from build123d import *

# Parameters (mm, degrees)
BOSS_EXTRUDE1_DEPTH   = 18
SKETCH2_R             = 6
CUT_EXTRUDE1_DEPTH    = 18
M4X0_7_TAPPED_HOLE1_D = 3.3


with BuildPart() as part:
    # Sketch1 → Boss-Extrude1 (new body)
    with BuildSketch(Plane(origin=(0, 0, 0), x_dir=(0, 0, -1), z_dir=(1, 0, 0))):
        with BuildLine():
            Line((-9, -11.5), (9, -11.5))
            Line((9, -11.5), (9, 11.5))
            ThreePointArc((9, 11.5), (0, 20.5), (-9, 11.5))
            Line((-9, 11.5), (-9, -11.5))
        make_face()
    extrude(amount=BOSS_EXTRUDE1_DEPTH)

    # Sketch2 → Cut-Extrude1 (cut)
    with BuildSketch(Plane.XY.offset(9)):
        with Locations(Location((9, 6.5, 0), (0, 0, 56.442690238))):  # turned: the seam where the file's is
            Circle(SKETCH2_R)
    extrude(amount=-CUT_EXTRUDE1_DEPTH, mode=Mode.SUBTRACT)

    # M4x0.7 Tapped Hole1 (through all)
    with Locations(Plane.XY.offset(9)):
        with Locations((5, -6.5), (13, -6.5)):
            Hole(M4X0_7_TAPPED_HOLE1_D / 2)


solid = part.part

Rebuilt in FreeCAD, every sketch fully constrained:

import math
import FreeCAD as App
import Part
import Sketcher
Q = App.Units.Quantity

doc = App.newDocument("Part")
params = doc.addObject("Spreadsheet::Sheet", "Params")
for row, (alias, value) in enumerate([
    ("sketch1_radius", "9 mm"),
    ("sketch1_width", "23 mm"),
    ("pad1_length", "18 mm"),
    ("sketch2_diameter", "12 mm"),
    ("pocket1_length", "18 mm"),
    ("sketch3_diameter", "3.3 mm"),
    ("hole_diameter", "3.3 mm"),
], start=1):
    params.set(f"A{row}", alias)
    params.set(f"B{row}", "=" + value)
    params.setAlias(f"B{row}", alias)

body = doc.addObject("PartDesign::Body", "Body")

# Sketch on YZ plane
sketch1 = body.newObject("Sketcher::SketchObject", "Sketch")
sketch1.AttachmentSupport = (doc.getObject("YZ_Plane"), [""])
sketch1.MapMode = "FlatFace"
sketch1.addGeometry(Part.LineSegment(App.Vector(-12, 9, 0), App.Vector(-12, -9, 0)), False)
sketch1.addGeometry(Part.LineSegment(App.Vector(-12, -9, 0), App.Vector(12, -9, 0)), False)
sketch1.addGeometry(Part.ArcOfCircle(Part.Circle(App.Vector(12, 0, 0), App.Vector(0, 0, 1), 9), math.radians(-90), math.radians(90)), False)
sketch1.addGeometry(Part.LineSegment(App.Vector(12, 9, 0), App.Vector(-12, 9, 0)), False)
sketch1.addConstraint(Sketcher.Constraint("Coincident", 0, 2, 1, 1))
sketch1.addConstraint(Sketcher.Constraint("Tangent", 1, 2, 2, 1))
sketch1.addConstraint(Sketcher.Constraint("Tangent", 2, 2, 3, 1))
sketch1.addConstraint(Sketcher.Constraint("Coincident", 3, 2, 0, 1))
sketch1.addConstraint(Sketcher.Constraint("Vertical", 0))
sketch1.addConstraint(Sketcher.Constraint("Horizontal", 1))
sketch1.addConstraint(Sketcher.Constraint("Horizontal", 3))
sketch1.addConstraint(Sketcher.Constraint("Symmetric", 0, 2, 2, 2, -1, 1))
sketch1.addConstraint(Sketcher.Constraint("Radius", 2, Q("9 mm")))
sketch1.addConstraint(Sketcher.Constraint("DistanceX", 1, 1, 1, 2, Q("23 mm")))
sketch1.setExpression("Constraints[8]", "Params.sketch1_radius")
sketch1.setExpression("Constraints[9]", "Params.sketch1_width")
pad1 = body.newObject("PartDesign::Pad", "Pad")
pad1.Profile = sketch1
pad1.setExpression("Length", "Params.pad1_length")

# Sketch on XY plane
sketch2 = body.newObject("Sketcher::SketchObject", "Sketch001")
sketch2.AttachmentSupport = (doc.getObject("XY_Plane"), [""])
sketch2.MapMode = "FlatFace"
sketch2.AttachmentOffset = App.Placement(App.Vector(0, 0, 9), App.Rotation())
sketch2.addGeometry(Part.Circle(App.Vector(9, 6, 0), App.Vector(0, 0, 1), 6), False)
sketch2.addConstraint(Sketcher.Constraint("Diameter", 0, Q("12 mm")))
sketch2.addConstraint(Sketcher.Constraint("DistanceX", -1, 1, 0, 3, Q("9 mm")))
sketch2.addConstraint(Sketcher.Constraint("DistanceY", -1, 1, 0, 3, Q("6.5 mm")))
sketch2.setExpression("Constraints[0]", "Params.sketch2_diameter")
pocket1 = body.newObject("PartDesign::Pocket", "Pocket")
pocket1.Profile = sketch2
pocket1.setExpression("Length", "Params.pocket1_length")

# Sketch on XY plane
sketch3 = body.newObject("Sketcher::SketchObject", "Sketch002")
sketch3.AttachmentSupport = (doc.getObject("XY_Plane"), [""])
sketch3.MapMode = "FlatFace"
sketch3.AttachmentOffset = App.Placement(App.Vector(0, 0, 9), App.Rotation())
sketch3.addGeometry(Part.Circle(App.Vector(5, -6.5, 0), App.Vector(0, 0, 1), 1.6), False)
sketch3.addGeometry(Part.Circle(App.Vector(13, -6.5, 0), App.Vector(0, 0, 1), 1.6), False)
sketch3.addConstraint(Sketcher.Constraint("Equal", 0, 1))
sketch3.addConstraint(Sketcher.Constraint("Horizontal", 0, 3, 1, 3))
sketch3.addConstraint(Sketcher.Constraint("Diameter", 0, Q("3.3 mm")))
sketch3.addConstraint(Sketcher.Constraint("DistanceX", -1, 1, 0, 3, Q("5 mm")))
sketch3.addConstraint(Sketcher.Constraint("DistanceX", -1, 1, 1, 3, Q("13 mm")))
sketch3.addConstraint(Sketcher.Constraint("DistanceY", 0, 3, -1, 1, Q("6.5 mm")))
sketch3.setExpression("Constraints[2]", "Params.sketch3_diameter")
doc.recompute()
hole = body.newObject("PartDesign::Hole", "Hole")
hole.Profile = sketch3
hole.ThreadType = "None"
hole.setExpression("Diameter", "Params.hole_diameter")
hole.DepthType = "ThroughAll"

doc.recompute()
